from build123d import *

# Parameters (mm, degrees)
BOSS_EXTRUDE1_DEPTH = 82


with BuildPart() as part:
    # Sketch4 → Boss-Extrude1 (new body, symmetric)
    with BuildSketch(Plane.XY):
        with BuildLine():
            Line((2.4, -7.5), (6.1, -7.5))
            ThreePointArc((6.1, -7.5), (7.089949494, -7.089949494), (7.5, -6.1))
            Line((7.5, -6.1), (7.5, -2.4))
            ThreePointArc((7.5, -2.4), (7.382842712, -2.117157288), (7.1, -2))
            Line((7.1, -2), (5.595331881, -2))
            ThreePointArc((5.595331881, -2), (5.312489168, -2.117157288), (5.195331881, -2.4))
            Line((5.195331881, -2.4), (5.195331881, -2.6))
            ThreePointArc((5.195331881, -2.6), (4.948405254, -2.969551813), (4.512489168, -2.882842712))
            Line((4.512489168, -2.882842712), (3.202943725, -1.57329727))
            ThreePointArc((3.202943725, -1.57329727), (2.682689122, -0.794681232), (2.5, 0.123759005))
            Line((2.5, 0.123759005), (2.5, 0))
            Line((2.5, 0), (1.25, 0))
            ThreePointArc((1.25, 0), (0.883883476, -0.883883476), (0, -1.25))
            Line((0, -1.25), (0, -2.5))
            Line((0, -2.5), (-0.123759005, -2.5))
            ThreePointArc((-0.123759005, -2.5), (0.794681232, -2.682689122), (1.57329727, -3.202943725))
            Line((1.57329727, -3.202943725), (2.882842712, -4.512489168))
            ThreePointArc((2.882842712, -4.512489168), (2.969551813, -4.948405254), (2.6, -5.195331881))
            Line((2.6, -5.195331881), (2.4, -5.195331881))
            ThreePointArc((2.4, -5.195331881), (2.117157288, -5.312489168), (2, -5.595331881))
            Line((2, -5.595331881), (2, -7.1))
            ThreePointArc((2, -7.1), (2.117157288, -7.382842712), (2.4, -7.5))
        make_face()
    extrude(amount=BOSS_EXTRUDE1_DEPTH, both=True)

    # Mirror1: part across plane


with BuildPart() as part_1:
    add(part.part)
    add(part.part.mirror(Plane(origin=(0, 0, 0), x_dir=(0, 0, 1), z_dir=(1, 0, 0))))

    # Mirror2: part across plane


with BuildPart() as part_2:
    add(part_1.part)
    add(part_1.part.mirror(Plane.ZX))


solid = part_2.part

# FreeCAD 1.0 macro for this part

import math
import FreeCAD as App
import Part
import Sketcher
from FreeCAD import Vector
Q = App.Units.Quantity

doc = App.newDocument("Part")
body = doc.addObject("PartDesign::Body", "Body")

sketch1 = body.newObject("Sketcher::SketchObject", "Sketch")
sketch1.AttachmentSupport = (doc.getObject("XY_Plane"), [""])
sketch1.MapMode = "FlatFace"
sketch1.addGeometry(Part.LineSegment(Vector(2.4, -7.5, 0), Vector(6.1, -7.5, 0)), False)
sketch1.addGeometry(Part.ArcOfCircle(Part.Circle(Vector(6.1, -6.1, 0), Vector(0, 0, 1), 1.4), math.radians(-90), math.radians(0)), False)
sketch1.addGeometry(Part.LineSegment(Vector(7.5, -6.1, 0), Vector(7.5, -2.4, 0)), False)
sketch1.addGeometry(Part.ArcOfCircle(Part.Circle(Vector(7.1, -2.4, 0), Vector(0, 0, 1), 0.4), math.radians(0), math.radians(90)), False)
sketch1.addGeometry(Part.LineSegment(Vector(7.1, -2, 0), Vector(5.6, -2, 0)), False)
sketch1.addGeometry(Part.ArcOfCircle(Part.Circle(Vector(5.6, -2.4, 0), Vector(0, 0, 1), 0.4), math.radians(90), math.radians(180)), False)
sketch1.addGeometry(Part.LineSegment(Vector(5.2, -2.4, 0), Vector(5.2, -2.6, 0)), False)
sketch1.addGeometry(Part.ArcOfCircle(Part.Circle(Vector(4.8, -2.6, 0), Vector(0, 0, 1), 0.4), math.radians(-135), math.radians(0)), False)
sketch1.addGeometry(Part.LineSegment(Vector(4.51, -2.88, 0), Vector(3.2, -1.57, 0)), False)
sketch1.addGeometry(Part.ArcOfCircle(Part.Circle(Vector(4.9, 0.12, 0), Vector(0, 0, 1), 2.4), math.radians(-180), math.radians(-135)), False)
sketch1.addGeometry(Part.LineSegment(Vector(2.5, 0.12, 0), Vector(2.5, 0, 0)), False)
sketch1.addGeometry(Part.LineSegment(Vector(2.5, 0, 0), Vector(1.25, 0, 0)), False)
sketch1.addGeometry(Part.ArcOfCircle(Part.Circle(Vector(0, 0, 0), Vector(0, 0, 1), 1.25), math.radians(-90), math.radians(0)), False)
sketch1.addGeometry(Part.LineSegment(Vector(0, -1.25, 0), Vector(0, -2.5, 0)), False)
sketch1.addGeometry(Part.LineSegment(Vector(0, -2.5, 0), Vector(-0.12, -2.5, 0)), False)
sketch1.addGeometry(Part.ArcOfCircle(Part.Circle(Vector(-0.12, -4.9, 0), Vector(0, 0, 1), 2.4), math.radians(45), math.radians(90)), False)
sketch1.addGeometry(Part.LineSegment(Vector(1.57, -3.2, 0), Vector(2.88, -4.51, 0)), False)
sketch1.addGeometry(Part.ArcOfCircle(Part.Circle(Vector(2.6, -4.8, 0), Vector(0, 0, 1), 0.4), math.radians(-90), math.radians(45)), False)
sketch1.addGeometry(Part.LineSegment(Vector(2.6, -5.2, 0), Vector(2.4, -5.2, 0)), False)
sketch1.addGeometry(Part.ArcOfCircle(Part.Circle(Vector(2.4, -5.6, 0), Vector(0, 0, 1), 0.4), math.radians(90), math.radians(180)), False)
sketch1.addGeometry(Part.LineSegment(Vector(2, -5.6, 0), Vector(2, -7.1, 0)), False)
sketch1.addGeometry(Part.ArcOfCircle(Part.Circle(Vector(2.4, -7.1, 0), Vector(0, 0, 1), 0.4), math.radians(-180), math.radians(-90)), False)
sketch1.addConstraint(Sketcher.Constraint("Tangent", 0, 2, 1, 1))
sketch1.addConstraint(Sketcher.Constraint("Tangent", 1, 2, 2, 1))
sketch1.addConstraint(Sketcher.Constraint("Tangent", 2, 2, 3, 1))
sketch1.addConstraint(Sketcher.Constraint("Tangent", 3, 2, 4, 1))
sketch1.addConstraint(Sketcher.Constraint("Tangent", 4, 2, 5, 1))
sketch1.addConstraint(Sketcher.Constraint("Tangent", 5, 2, 6, 1))
sketch1.addConstraint(Sketcher.Constraint("Tangent", 6, 2, 7, 2))
sketch1.addConstraint(Sketcher.Constraint("Tangent", 7, 1, 8, 1))
sketch1.addConstraint(Sketcher.Constraint("Tangent", 8, 2, 9, 2))
sketch1.addConstraint(Sketcher.Constraint("Tangent", 9, 1, 10, 1))
sketch1.addConstraint(Sketcher.Constraint("Coincident", 10, 2, 11, 1))
sketch1.addConstraint(Sketcher.Constraint("Coincident", 11, 2, 12, 2))
sketch1.addConstraint(Sketcher.Constraint("Coincident", 12, 1, 13, 1))
sketch1.addConstraint(Sketcher.Constraint("Coincident", 13, 2, 14, 1))
sketch1.addConstraint(Sketcher.Constraint("Tangent", 14, 2, 15, 2))
sketch1.addConstraint(Sketcher.Constraint("Tangent", 15, 1, 16, 1))
sketch1.addConstraint(Sketcher.Constraint("Tangent", 16, 2, 17, 2))
sketch1.addConstraint(Sketcher.Constraint("Tangent", 17, 1, 18, 1))
sketch1.addConstraint(Sketcher.Constraint("Tangent", 18, 2, 19, 1))
sketch1.addConstraint(Sketcher.Constraint("Tangent", 19, 2, 20, 1))
sketch1.addConstraint(Sketcher.Constraint("Tangent", 20, 2, 21, 1))
sketch1.addConstraint(Sketcher.Constraint("Tangent", 21, 2, 0, 1))
sketch1.addConstraint(Sketcher.Constraint("Horizontal", 0))
sketch1.addConstraint(Sketcher.Constraint("Vertical", 2))
sketch1.addConstraint(Sketcher.Constraint("Horizontal", 4))
sketch1.addConstraint(Sketcher.Constraint("Vertical", 6))
sketch1.addConstraint(Sketcher.Constraint("Vertical", 10))
sketch1.addConstraint(Sketcher.Constraint("Horizontal", 11))
sketch1.addConstraint(Sketcher.Constraint("Vertical", 13))
sketch1.addConstraint(Sketcher.Constraint("Horizontal", 14))
sketch1.addConstraint(Sketcher.Constraint("Horizontal", 18))
sketch1.addConstraint(Sketcher.Constraint("Vertical", 20))
sketch1.addConstraint(Sketcher.Constraint("Coincident", 12, 3, -1, 1))
sketch1.addConstraint(Sketcher.Constraint("Equal", 3, 5))
sketch1.addConstraint(Sketcher.Constraint("Equal", 5, 7))
sketch1.addConstraint(Sketcher.Constraint("Equal", 9, 15))
sketch1.addConstraint(Sketcher.Constraint("Equal", 7, 17))
sketch1.addConstraint(Sketcher.Constraint("Equal", 17, 19))
sketch1.addConstraint(Sketcher.Constraint("Equal", 19, 21))
sketch1.addConstraint(Sketcher.Constraint("PointOnObject", 10, 2, -1))
sketch1.addConstraint(Sketcher.Constraint("PointOnObject", 12, 1, -2))
sketch1.addConstraint(Sketcher.Constraint("Parallel", 8, 16))
sketch1.addConstraint(Sketcher.Constraint("Equal", 0, 2))
sketch1.addConstraint(Sketcher.Constraint("Equal", 18, 6))
sketch1.addConstraint(Sketcher.Constraint("Equal", 14, 10))
sketch1.addConstraint(Sketcher.Constraint("Equal", 11, 13))
sketch1.addConstraint(Sketcher.Constraint("Equal", 4, 20))
sketch1.addConstraint(Sketcher.Constraint("Equal", 8, 16))
sketch1.addConstraint(Sketcher.Constraint("Radius", 1, Q("1.4 mm")))
sketch1.addConstraint(Sketcher.Constraint("Radius", 3, Q("0.4 mm")))
sketch1.addConstraint(Sketcher.Constraint("Radius", 9, Q("2.4 mm")))
sketch1.addConstraint(Sketcher.Constraint("Radius", 12, Q("1.25 mm")))
sketch1.addConstraint(Sketcher.Constraint("DistanceX", 0, 1, 0, 2, Q("3.7 mm")))
sketch1.addConstraint(Sketcher.Constraint("DistanceX", 18, 2, 18, 1, Q("0.2 mm")))
sketch1.addConstraint(Sketcher.Constraint("DistanceY", 3, 2, -1, 1, Q("2 mm")))
sketch1.addConstraint(Sketcher.Constraint("DistanceX", 11, 2, 11, 1, Q("1.25 mm")))
sketch1.addConstraint(Sketcher.Constraint("DistanceX", 4, 2, 4, 1, Q("1.504668 mm")))
pad1 = body.newObject("PartDesign::Pad", "Pad")
pad1.Profile = sketch1
pad1.Length = 164
pad1.Midplane = True
body2 = doc.addObject("PartDesign::Body", "Body001")
doc.recompute()

body2.BaseFeature = body
doc.recompute()

mirroring = doc.addObject("Part::Mirroring", "Mirroring")
mirroring.Source = body
mirroring.Base = Vector(0, 0, 0)
mirroring.Normal = Vector(1, 0, 0)
body3 = doc.addObject("PartDesign::Body", "Body002")
body3.BaseFeature = mirroring
boolean = body2.newObject("PartDesign::Boolean", "Boolean")
boolean.Type = "Fuse"
boolean.addObjects([body3])
doc.recompute()
body4 = doc.addObject("PartDesign::Body", "Body003")
doc.recompute()

body4.BaseFeature = body2
doc.recompute()

mirroring2 = doc.addObject("Part::Mirroring", "Mirroring001")
mirroring2.Source = body2
mirroring2.Base = Vector(0, 0, 0)
mirroring2.Normal = Vector(0, 1, 0)
body5 = doc.addObject("PartDesign::Body", "Body004")
body5.BaseFeature = mirroring2
boolean2 = body4.newObject("PartDesign::Boolean", "Boolean001")
boolean2.Type = "Fuse"
boolean2.addObjects([body5])
doc.recompute()
mirroring.Visibility = False
mirroring2.Visibility = False

doc.recompute()
